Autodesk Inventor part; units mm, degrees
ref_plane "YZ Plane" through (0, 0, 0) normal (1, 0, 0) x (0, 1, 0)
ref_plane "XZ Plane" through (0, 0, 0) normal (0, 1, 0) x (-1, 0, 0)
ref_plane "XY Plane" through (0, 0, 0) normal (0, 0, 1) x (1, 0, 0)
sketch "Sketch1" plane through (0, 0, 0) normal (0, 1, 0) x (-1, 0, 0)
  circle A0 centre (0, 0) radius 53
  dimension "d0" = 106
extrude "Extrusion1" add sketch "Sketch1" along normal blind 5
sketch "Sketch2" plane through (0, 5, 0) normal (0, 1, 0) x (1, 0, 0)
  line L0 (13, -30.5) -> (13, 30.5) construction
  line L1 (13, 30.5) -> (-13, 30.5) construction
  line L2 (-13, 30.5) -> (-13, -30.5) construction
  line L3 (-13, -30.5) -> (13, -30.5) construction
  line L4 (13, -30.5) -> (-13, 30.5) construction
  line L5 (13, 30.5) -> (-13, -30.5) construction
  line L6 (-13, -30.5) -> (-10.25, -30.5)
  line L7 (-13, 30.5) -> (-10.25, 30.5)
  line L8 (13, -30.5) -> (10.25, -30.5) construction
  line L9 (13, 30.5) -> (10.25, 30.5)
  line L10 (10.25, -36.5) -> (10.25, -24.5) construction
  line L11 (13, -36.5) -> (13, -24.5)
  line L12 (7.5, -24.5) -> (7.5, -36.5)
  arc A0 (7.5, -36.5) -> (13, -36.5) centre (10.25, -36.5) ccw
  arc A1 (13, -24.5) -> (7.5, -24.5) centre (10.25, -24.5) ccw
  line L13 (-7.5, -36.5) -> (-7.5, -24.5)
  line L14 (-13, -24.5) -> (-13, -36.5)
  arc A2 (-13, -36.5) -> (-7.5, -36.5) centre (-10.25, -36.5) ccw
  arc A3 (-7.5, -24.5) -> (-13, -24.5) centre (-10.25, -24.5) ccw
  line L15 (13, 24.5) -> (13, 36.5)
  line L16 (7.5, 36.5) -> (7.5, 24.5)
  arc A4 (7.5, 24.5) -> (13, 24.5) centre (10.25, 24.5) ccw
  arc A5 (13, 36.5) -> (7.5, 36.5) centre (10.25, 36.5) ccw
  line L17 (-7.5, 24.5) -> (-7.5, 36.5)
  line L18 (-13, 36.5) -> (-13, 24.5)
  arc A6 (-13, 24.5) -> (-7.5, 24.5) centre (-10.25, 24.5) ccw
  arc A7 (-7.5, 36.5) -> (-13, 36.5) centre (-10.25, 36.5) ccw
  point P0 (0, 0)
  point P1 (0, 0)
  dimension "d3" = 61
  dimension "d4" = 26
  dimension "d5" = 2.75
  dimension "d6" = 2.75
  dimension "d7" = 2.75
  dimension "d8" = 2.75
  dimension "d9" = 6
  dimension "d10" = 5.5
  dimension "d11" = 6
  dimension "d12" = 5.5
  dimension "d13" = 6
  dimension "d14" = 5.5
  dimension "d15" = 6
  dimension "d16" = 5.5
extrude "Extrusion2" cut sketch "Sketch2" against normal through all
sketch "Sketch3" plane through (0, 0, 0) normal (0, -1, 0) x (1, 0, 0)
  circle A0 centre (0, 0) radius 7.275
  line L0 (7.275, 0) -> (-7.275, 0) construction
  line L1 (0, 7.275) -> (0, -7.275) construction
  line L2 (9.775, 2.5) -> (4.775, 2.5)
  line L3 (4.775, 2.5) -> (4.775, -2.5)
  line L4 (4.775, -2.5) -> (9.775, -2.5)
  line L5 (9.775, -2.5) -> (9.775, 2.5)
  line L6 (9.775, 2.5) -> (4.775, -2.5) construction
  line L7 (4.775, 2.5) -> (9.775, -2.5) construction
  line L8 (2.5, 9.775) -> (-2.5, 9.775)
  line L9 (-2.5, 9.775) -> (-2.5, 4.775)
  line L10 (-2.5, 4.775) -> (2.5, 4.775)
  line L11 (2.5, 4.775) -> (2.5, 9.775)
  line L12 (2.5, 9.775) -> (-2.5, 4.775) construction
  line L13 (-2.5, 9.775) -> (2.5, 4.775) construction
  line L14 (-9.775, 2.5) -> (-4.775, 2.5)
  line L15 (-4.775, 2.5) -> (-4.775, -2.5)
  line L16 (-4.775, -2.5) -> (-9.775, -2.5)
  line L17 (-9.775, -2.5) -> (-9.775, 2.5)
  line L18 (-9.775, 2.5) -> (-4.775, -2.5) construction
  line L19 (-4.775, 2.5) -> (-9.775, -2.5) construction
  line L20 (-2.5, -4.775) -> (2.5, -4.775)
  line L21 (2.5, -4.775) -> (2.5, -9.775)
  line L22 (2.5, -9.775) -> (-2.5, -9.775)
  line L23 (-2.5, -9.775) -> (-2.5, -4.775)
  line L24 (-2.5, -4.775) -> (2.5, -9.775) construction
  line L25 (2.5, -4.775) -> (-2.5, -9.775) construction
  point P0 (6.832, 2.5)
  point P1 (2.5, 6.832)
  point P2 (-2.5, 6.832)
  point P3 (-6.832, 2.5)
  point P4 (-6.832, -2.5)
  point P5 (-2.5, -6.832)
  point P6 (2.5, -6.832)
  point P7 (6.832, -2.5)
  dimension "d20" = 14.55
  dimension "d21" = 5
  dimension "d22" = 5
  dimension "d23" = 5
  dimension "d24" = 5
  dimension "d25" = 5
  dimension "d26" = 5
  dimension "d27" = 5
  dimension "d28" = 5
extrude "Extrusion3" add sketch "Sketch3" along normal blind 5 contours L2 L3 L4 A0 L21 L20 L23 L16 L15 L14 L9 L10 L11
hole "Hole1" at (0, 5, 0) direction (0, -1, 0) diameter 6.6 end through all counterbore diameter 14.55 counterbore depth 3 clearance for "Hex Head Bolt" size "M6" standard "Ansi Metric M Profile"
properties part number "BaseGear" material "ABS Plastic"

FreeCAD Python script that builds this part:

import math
import FreeCAD as App
import Part
import Sketcher

V = App.Vector
Q = App.Units.Quantity

doc = App.newDocument("Part")
body = doc.addObject("PartDesign::Body", "Body")

sketch1 = body.newObject("Sketcher::SketchObject", "Sketch")
sketch1.AttachmentSupport = (doc.getObject("XZ_Plane"), [""])
sketch1.MapMode = "FlatFace"
sketch1.addGeometry(Part.Circle(V(0, 0, 0), V(0, 0, 1), 53), False)
sketch1.addConstraint([
    Sketcher.Constraint("Coincident", 0, 3, -1, 1),
    Sketcher.Constraint("Diameter", 0, Q("106 mm")),
])
pad1 = body.newObject("PartDesign::Pad", "Pad")
pad1.Profile = sketch1
pad1.Length = 5
pad1.Reversed = True

sketch2 = body.newObject("Sketcher::SketchObject", "Sketch001")
sketch2.AttachmentSupport = (doc.getObject("XZ_Plane"), [""])
sketch2.MapMode = "FlatFace"
sketch2.AttachmentOffset = App.Placement(V(0, 0, -5), App.Rotation())
sketch2.addGeometry([
    Part.ArcOfCircle(Part.Circle(V(10.25, 36.5, 0), V(0, 0, 1), 2.75), math.radians(0), math.radians(180)),
    Part.LineSegment(V(13, 36.5, 0), V(13, 24.5, 0)),
    Part.ArcOfCircle(Part.Circle(V(10.25, 24.5, 0), V(0, 0, 1), 2.75), math.radians(180), math.radians(360)),
    Part.LineSegment(V(7.5, 24.5, 0), V(7.5, 36.5, 0)),
    Part.ArcOfCircle(Part.Circle(V(-10.25, 36.5, 0), V(0, 0, 1), 2.75), math.radians(0), math.radians(180)),
    Part.LineSegment(V(-7.5, 36.5, 0), V(-7.5, 24.5, 0)),
    Part.ArcOfCircle(Part.Circle(V(-10.25, 24.5, 0), V(0, 0, 1), 2.75), math.radians(180), math.radians(360)),
    Part.LineSegment(V(-13, 24.5, 0), V(-13, 36.5, 0)),
    Part.ArcOfCircle(Part.Circle(V(10.25, -24.5, 0), V(0, 0, 1), 2.75), math.radians(0), math.radians(180)),
    Part.LineSegment(V(13, -24.5, 0), V(13, -36.5, 0)),
    Part.ArcOfCircle(Part.Circle(V(10.25, -36.5, 0), V(0, 0, 1), 2.75), math.radians(180), math.radians(360)),
    Part.LineSegment(V(7.5, -36.5, 0), V(7.5, -24.5, 0)),
    Part.ArcOfCircle(Part.Circle(V(-10.25, -24.5, 0), V(0, 0, 1), 2.75), math.radians(0), math.radians(180)),
    Part.LineSegment(V(-7.5, -24.5, 0), V(-7.5, -36.5, 0)),
    Part.ArcOfCircle(Part.Circle(V(-10.25, -36.5, 0), V(0, 0, 1), 2.75), math.radians(180), math.radians(360)),
    Part.LineSegment(V(-13, -36.5, 0), V(-13, -24.5, 0)),
], False)
sketch2.addConstraint([
    Sketcher.Constraint("Tangent", 0, 1, 1, 1),
    Sketcher.Constraint("Tangent", 1, 2, 2, 2),
    Sketcher.Constraint("Tangent", 2, 1, 3, 1),
    Sketcher.Constraint("Tangent", 3, 2, 0, 2),
    Sketcher.Constraint("Tangent", 4, 1, 5, 1),
    Sketcher.Constraint("Tangent", 5, 2, 6, 2),
    Sketcher.Constraint("Tangent", 6, 1, 7, 1),
    Sketcher.Constraint("Tangent", 7, 2, 4, 2),
    Sketcher.Constraint("Tangent", 8, 1, 9, 1),
    Sketcher.Constraint("Tangent", 9, 2, 10, 2),
    Sketcher.Constraint("Tangent", 10, 1, 11, 1),
    Sketcher.Constraint("Tangent", 11, 2, 8, 2),
    Sketcher.Constraint("Tangent", 12, 1, 13, 1),
    Sketcher.Constraint("Tangent", 13, 2, 14, 2),
    Sketcher.Constraint("Tangent", 14, 1, 15, 1),
    Sketcher.Constraint("Tangent", 15, 2, 12, 2),
    Sketcher.Constraint("Vertical", 1),
    Sketcher.Constraint("Vertical", 3),
    Sketcher.Constraint("Vertical", 5),
    Sketcher.Constraint("Vertical", 7),
    Sketcher.Constraint("Vertical", 9),
    Sketcher.Constraint("Vertical", 11),
    Sketcher.Constraint("Vertical", 13),
    Sketcher.Constraint("Vertical", 15),
    Sketcher.Constraint("Equal", 2, 4),
    Sketcher.Constraint("Equal", 6, 8),
    Sketcher.Constraint("Equal", 10, 12),
    Sketcher.Constraint("Symmetric", 6, 3, 8, 3, -1, 1),
    Sketcher.Constraint("Symmetric", 2, 3, 12, 3, -1, 1),
    Sketcher.Constraint("Symmetric", 0, 3, 4, 3, -2),
    Sketcher.Constraint("Horizontal", 2, 3, 6, 3),
    Sketcher.Constraint("Horizontal", 10, 3, 14, 3),
    Sketcher.Constraint("Equal", 7, 9),
    Sketcher.Constraint("Radius", 0, Q("2.75 mm")),
    Sketcher.Constraint("DistanceY", 8, 3, 0, 3, Q("61 mm")),
    Sketcher.Constraint("DistanceY", 1, 2, 1, 1, Q("12 mm")),
    Sketcher.Constraint("DistanceX", -1, 1, 0, 1, Q("13 mm")),
])
pocket1 = body.newObject("PartDesign::Pocket", "Pocket")
pocket1.Profile = sketch2
pocket1.Type = "ThroughAll"
pocket1.Reversed = True

sketch3 = body.newObject("Sketcher::SketchObject", "Sketch002")
sketch3.AttachmentSupport = (doc.getObject("XZ_Plane"), [""])
sketch3.MapMode = "FlatFace"
sketch3.addGeometry([
    Part.LineSegment(V(4.775, 2.5, 0), V(6.831956, 2.5, 0)),
    Part.ArcOfCircle(Part.Circle(V(0, 0, 0), V(0, 0, 1), 7.275), math.radians(20.098958), math.radians(69.901042)),
    Part.LineSegment(V(2.5, 6.831956, 0), V(2.5, 4.775, 0)),
    Part.LineSegment(V(2.5, 4.775, 0), V(-2.5, 4.775, 0)),
    Part.LineSegment(V(-2.5, 4.775, 0), V(-2.5, 6.831956, 0)),
    Part.ArcOfCircle(Part.Circle(V(0, 0, 0), V(0, 0, 1), 7.275), math.radians(110.098958), math.radians(159.901042)),
    Part.LineSegment(V(-6.831956, 2.5, 0), V(-4.775, 2.5, 0)),
    Part.LineSegment(V(-4.775, 2.5, 0), V(-4.775, -2.5, 0)),
    Part.LineSegment(V(-4.775, -2.5, 0), V(-6.831956, -2.5, 0)),
    Part.ArcOfCircle(Part.Circle(V(0, 0, 0), V(0, 0, 1), 7.275), math.radians(-159.901042), math.radians(-110.098958)),
    Part.LineSegment(V(-2.5, -6.831956, 0), V(-2.5, -4.775, 0)),
    Part.LineSegment(V(-2.5, -4.775, 0), V(2.5, -4.775, 0)),
    Part.LineSegment(V(2.5, -4.775, 0), V(2.5, -6.831956, 0)),
    Part.ArcOfCircle(Part.Circle(V(0, 0, 0), V(0, 0, 1), 7.275), math.radians(-69.901042), math.radians(-20.098958)),
    Part.LineSegment(V(6.831956, -2.5, 0), V(4.775, -2.5, 0)),
    Part.LineSegment(V(4.775, -2.5, 0), V(4.775, 2.5, 0)),
], False)
sketch3.addConstraint([
    Sketcher.Constraint("Coincident", 0, 2, 1, 1),
    Sketcher.Constraint("Coincident", 1, 2, 2, 1),
    Sketcher.Constraint("Coincident", 2, 2, 3, 1),
    Sketcher.Constraint("Coincident", 3, 2, 4, 1),
    Sketcher.Constraint("Coincident", 4, 2, 5, 1),
    Sketcher.Constraint("Coincident", 5, 2, 6, 1),
    Sketcher.Constraint("Coincident", 6, 2, 7, 1),
    Sketcher.Constraint("Coincident", 7, 2, 8, 1),
    Sketcher.Constraint("Coincident", 8, 2, 9, 1),
    Sketcher.Constraint("Coincident", 9, 2, 10, 1),
    Sketcher.Constraint("Coincident", 10, 2, 11, 1),
    Sketcher.Constraint("Coincident", 11, 2, 12, 1),
    Sketcher.Constraint("Coincident", 12, 2, 13, 1),
    Sketcher.Constraint("Coincident", 13, 2, 14, 1),
    Sketcher.Constraint("Coincident", 14, 2, 15, 1),
    Sketcher.Constraint("Coincident", 15, 2, 0, 1),
    Sketcher.Constraint("Horizontal", 0),
    Sketcher.Constraint("Vertical", 2),
    Sketcher.Constraint("Horizontal", 3),
    Sketcher.Constraint("Vertical", 4),
    Sketcher.Constraint("Horizontal", 6),
    Sketcher.Constraint("Vertical", 7),
    Sketcher.Constraint("Horizontal", 8),
    Sketcher.Constraint("Vertical", 10),
    Sketcher.Constraint("Horizontal", 11),
    Sketcher.Constraint("Vertical", 12),
    Sketcher.Constraint("Horizontal", 14),
    Sketcher.Constraint("Vertical", 15),
    Sketcher.Constraint("Coincident", 1, 3, -1, 1),
    Sketcher.Constraint("Coincident", 5, 3, -1, 1),
    Sketcher.Constraint("Coincident", 9, 3, -1, 1),
    Sketcher.Constraint("Coincident", 13, 3, -1, 1),
    Sketcher.Constraint("Equal", 1, 5),
    Sketcher.Constraint("Equal", 5, 9),
    Sketcher.Constraint("Equal", 9, 13),
    Sketcher.Constraint("Symmetric", 2, 2, 10, 2, -1, 1),
    Sketcher.Constraint("Symmetric", 6, 2, 14, 2, -1, 1),
    Sketcher.Constraint("Horizontal", 1, 2, 4, 2),
    Sketcher.Constraint("Horizontal", 0, 2, 5, 2),
    Sketcher.Constraint("Horizontal", 9, 2, 12, 2),
    Sketcher.Constraint("Horizontal", 8, 2, 13, 2),
    Sketcher.Constraint("Equal", 14, 2),
    Sketcher.Constraint("Equal", 11, 7),
    Sketcher.Constraint("DistanceX", 3, 2, 3, 1, Q("5 mm")),
    Sketcher.Constraint("Radius", 1, Q("7.275 mm")),
    Sketcher.Constraint("DistanceX", 0, 1, 0, 2, Q("2.057 mm")),
])
pad2 = body.newObject("PartDesign::Pad", "Pad001")
pad2.Profile = sketch3
pad2.Length = 5

sketch4 = body.newObject("Sketcher::SketchObject", "Sketch003")
sketch4.AttachmentSupport = (doc.getObject("XZ_Plane"), [""])
sketch4.MapMode = "FlatFace"
sketch4.AttachmentOffset = App.Placement(V(0, 0, -5), App.Rotation())
sketch4.addGeometry(Part.Circle(V(0, 0, 0), V(0, 0, 1), 3.3), False)
sketch4.addConstraint([
    Sketcher.Constraint("Coincident", 0, 3, -1, 1),
    Sketcher.Constraint("Diameter", 0, Q("6.6 mm")),
])
doc.recompute()
hole = body.newObject("PartDesign::Hole", "Hole")
hole.Profile = sketch4
hole.ThreadType = "None"
hole.Diameter = 6.6
hole.DepthType = "ThroughAll"
hole.HoleCutType = "Counterbore"
hole.HoleCutDiameter = 14.55
hole.HoleCutDepth = 3
hole.Reversed = True

doc.recompute()
